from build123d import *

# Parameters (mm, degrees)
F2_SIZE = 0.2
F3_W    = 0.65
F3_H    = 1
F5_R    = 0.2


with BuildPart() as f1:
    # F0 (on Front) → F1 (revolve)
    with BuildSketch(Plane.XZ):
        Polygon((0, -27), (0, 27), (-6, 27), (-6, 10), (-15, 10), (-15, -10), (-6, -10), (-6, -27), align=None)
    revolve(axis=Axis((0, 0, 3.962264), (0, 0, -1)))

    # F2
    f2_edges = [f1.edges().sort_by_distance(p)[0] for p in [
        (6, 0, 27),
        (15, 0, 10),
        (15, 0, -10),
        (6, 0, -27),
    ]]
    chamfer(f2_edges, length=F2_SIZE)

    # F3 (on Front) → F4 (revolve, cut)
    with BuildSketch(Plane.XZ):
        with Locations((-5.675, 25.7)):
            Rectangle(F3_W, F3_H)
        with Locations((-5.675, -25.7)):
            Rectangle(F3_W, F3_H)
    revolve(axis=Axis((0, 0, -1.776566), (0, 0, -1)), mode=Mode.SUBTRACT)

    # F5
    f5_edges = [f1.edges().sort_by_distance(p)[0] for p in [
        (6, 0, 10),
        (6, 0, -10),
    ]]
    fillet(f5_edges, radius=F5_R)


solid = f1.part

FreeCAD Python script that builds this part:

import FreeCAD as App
import Part
import Sketcher

V = App.Vector


def edges_at(feature, points):
    """Names of the edges that pass closest to the given points."""
    edges = feature.Shape.Edges
    near = lambda p: min(range(len(edges)), key=lambda i: edges[i].distToShape(Part.Vertex(*p))[0])
    return sorted({f"Edge{near(p) + 1}" for p in points})

doc = App.newDocument("Part")
params = doc.addObject("Spreadsheet::Sheet", "Params")
for row, (alias, value) in enumerate([
    ("sketch1_width", "6 mm"),
    ("sketch1_width2", "9 mm"),
    ("sketch1_height", "54 mm"),
    ("sketch1_height2", "17 mm"),
    ("revolution_angle", "360 deg"),
    ("chamfer_size", "0.2 mm"),
    ("sketch2_height", "1 mm"),
    ("sketch2_width", "0.65 mm"),
    ("groove_angle", "360 deg"),
    ("fillet_radius", "0.2 mm"),
], start=1):
    params.set(f"A{row}", alias)
    params.set(f"B{row}", "=" + value)
    params.setAlias(f"B{row}", alias)

body = doc.addObject("PartDesign::Body", "Body")

# Sketch on XZ plane
sketch1 = body.newObject("Sketcher::SketchObject", "Sketch")
sketch1.AttachmentSupport = (doc.getObject("XZ_Plane"), [""])
sketch1.MapMode = "FlatFace"
sketch1.addGeometry([
    Part.LineSegment(V(0, -27, 0), V(0, 27, 0)),  # 0
    Part.LineSegment(V(0, 27, 0), V(-6, 27, 0)),  # 1
    Part.LineSegment(V(-6, 27, 0), V(-6, 10, 0)),  # 2
    Part.LineSegment(V(-6, 10, 0), V(-15, 10, 0)),  # 3
    Part.LineSegment(V(-15, 10, 0), V(-15, -10, 0)),  # 4
    Part.LineSegment(V(-15, -10, 0), V(-6, -10, 0)),  # 5
    Part.LineSegment(V(-6, -10, 0), V(-6, -27, 0)),  # 6
    Part.LineSegment(V(-6, -27, 0), V(0, -27, 0)),  # 7
], False)
sketch1.addConstraint([
    Sketcher.Constraint("Coincident", 0, 2, 1, 1),
    Sketcher.Constraint("Coincident", 1, 2, 2, 1),
    Sketcher.Constraint("Coincident", 2, 2, 3, 1),
    Sketcher.Constraint("Coincident", 3, 2, 4, 1),
    Sketcher.Constraint("Coincident", 4, 2, 5, 1),
    Sketcher.Constraint("Coincident", 5, 2, 6, 1),
    Sketcher.Constraint("Coincident", 6, 2, 7, 1),
    Sketcher.Constraint("Coincident", 7, 2, 0, 1),
    Sketcher.Constraint("Vertical", 0),
    Sketcher.Constraint("Horizontal", 1),
    Sketcher.Constraint("Vertical", 2),
    Sketcher.Constraint("Horizontal", 3),
    Sketcher.Constraint("Vertical", 4),
    Sketcher.Constraint("Horizontal", 5),
    Sketcher.Constraint("Vertical", 6),
    Sketcher.Constraint("Horizontal", 7),
    Sketcher.Constraint("Symmetric", 0, 2, 7, 2, -1, 1),
    Sketcher.Constraint("Symmetric", 2, 2, 5, 2, -1),
    Sketcher.Constraint("DistanceX", 1, 2, 1, 1, 6.0),
    Sketcher.Constraint("DistanceX", 3, 2, 3, 1, 9.0),
    Sketcher.Constraint("DistanceY", 0, 1, 0, 2, 54.0),
    Sketcher.Constraint("DistanceY", 2, 2, 2, 1, 17.0),
])
sketch1.setExpression("Constraints[18]", "Params.sketch1_width")
sketch1.setExpression("Constraints[19]", "Params.sketch1_width2")
sketch1.setExpression("Constraints[20]", "Params.sketch1_height")
sketch1.setExpression("Constraints[21]", "Params.sketch1_height2")
revolution = body.newObject("PartDesign::Revolution", "Revolution")
revolution.Profile = sketch1
revolution.ReferenceAxis = (sketch1, ["V_Axis"])
revolution.setExpression("Angle", "Params.revolution_angle")
doc.recompute()

chamfer = body.newObject("PartDesign::Chamfer", "Chamfer")
chamfer.Base = (revolution, edges_at(revolution, [
    (6, 0, 27),
    (15, 0, 10),
    (15, 0, -10),
    (6, 0, -27),
]))
chamfer.setExpression("Size", "Params.chamfer_size")

# Sketch on XZ plane
sketch2 = body.newObject("Sketcher::SketchObject", "Sketch001")
sketch2.AttachmentSupport = (doc.getObject("XZ_Plane"), [""])
sketch2.MapMode = "FlatFace"
sketch2.addGeometry([
    Part.LineSegment(V(-6, 26.2, 0), V(-6, 25.2, 0)),  # 0
    Part.LineSegment(V(-6, 25.2, 0), V(-5.3, 25.2, 0)),  # 1
    Part.LineSegment(V(-5.3, 25.2, 0), V(-5.3, 26.2, 0)),  # 2
    Part.LineSegment(V(-5.3, 26.2, 0), V(-6, 26.2, 0)),  # 3
    Part.LineSegment(V(-6, -25.2, 0), V(-6, -26.2, 0)),  # 4
    Part.LineSegment(V(-6, -26.2, 0), V(-5.3, -26.2, 0)),  # 5
    Part.LineSegment(V(-5.3, -26.2, 0), V(-5.3, -25.2, 0)),  # 6
    Part.LineSegment(V(-5.3, -25.2, 0), V(-6, -25.2, 0)),  # 7
], False)
sketch2.addConstraint([
    Sketcher.Constraint("Coincident", 0, 2, 1, 1),
    Sketcher.Constraint("Coincident", 1, 2, 2, 1),
    Sketcher.Constraint("Coincident", 2, 2, 3, 1),
    Sketcher.Constraint("Coincident", 3, 2, 0, 1),
    Sketcher.Constraint("Coincident", 4, 2, 5, 1),
    Sketcher.Constraint("Coincident", 5, 2, 6, 1),
    Sketcher.Constraint("Coincident", 6, 2, 7, 1),
    Sketcher.Constraint("Coincident", 7, 2, 4, 1),
    Sketcher.Constraint("Vertical", 0),
    Sketcher.Constraint("Horizontal", 1),
    Sketcher.Constraint("Vertical", 2),
    Sketcher.Constraint("Horizontal", 3),
    Sketcher.Constraint("Vertical", 4),
    Sketcher.Constraint("Horizontal", 5),
    Sketcher.Constraint("Vertical", 6),
    Sketcher.Constraint("Horizontal", 7),
    Sketcher.Constraint("Symmetric", 3, 2, 4, 2, -1),
    Sketcher.Constraint("Symmetric", 1, 2, 6, 2, -1),
    Sketcher.Constraint("DistanceY", 0, 2, 0, 1, 1.0),
    Sketcher.Constraint("DistanceX", 0, 2, -1, 1, 6.0),
    Sketcher.Constraint("DistanceX", 1, 1, 1, 2, 0.65),
    Sketcher.Constraint("DistanceY", -1, 1, 0, 2, 25.2),
])
sketch2.setExpression("Constraints[18]", "Params.sketch2_height")
sketch2.setExpression("Constraints[20]", "Params.sketch2_width")
groove = body.newObject("PartDesign::Groove", "Groove")
groove.Profile = sketch2
groove.ReferenceAxis = (sketch2, ["V_Axis"])
groove.setExpression("Angle", "Params.groove_angle")
doc.recompute()

fillet = body.newObject("PartDesign::Fillet", "Fillet")
fillet.Base = (groove, edges_at(groove, [(6, 0, 10), (6, 0, -10)]))
fillet.setExpression("Radius", "Params.fillet_radius")

doc.recompute()
